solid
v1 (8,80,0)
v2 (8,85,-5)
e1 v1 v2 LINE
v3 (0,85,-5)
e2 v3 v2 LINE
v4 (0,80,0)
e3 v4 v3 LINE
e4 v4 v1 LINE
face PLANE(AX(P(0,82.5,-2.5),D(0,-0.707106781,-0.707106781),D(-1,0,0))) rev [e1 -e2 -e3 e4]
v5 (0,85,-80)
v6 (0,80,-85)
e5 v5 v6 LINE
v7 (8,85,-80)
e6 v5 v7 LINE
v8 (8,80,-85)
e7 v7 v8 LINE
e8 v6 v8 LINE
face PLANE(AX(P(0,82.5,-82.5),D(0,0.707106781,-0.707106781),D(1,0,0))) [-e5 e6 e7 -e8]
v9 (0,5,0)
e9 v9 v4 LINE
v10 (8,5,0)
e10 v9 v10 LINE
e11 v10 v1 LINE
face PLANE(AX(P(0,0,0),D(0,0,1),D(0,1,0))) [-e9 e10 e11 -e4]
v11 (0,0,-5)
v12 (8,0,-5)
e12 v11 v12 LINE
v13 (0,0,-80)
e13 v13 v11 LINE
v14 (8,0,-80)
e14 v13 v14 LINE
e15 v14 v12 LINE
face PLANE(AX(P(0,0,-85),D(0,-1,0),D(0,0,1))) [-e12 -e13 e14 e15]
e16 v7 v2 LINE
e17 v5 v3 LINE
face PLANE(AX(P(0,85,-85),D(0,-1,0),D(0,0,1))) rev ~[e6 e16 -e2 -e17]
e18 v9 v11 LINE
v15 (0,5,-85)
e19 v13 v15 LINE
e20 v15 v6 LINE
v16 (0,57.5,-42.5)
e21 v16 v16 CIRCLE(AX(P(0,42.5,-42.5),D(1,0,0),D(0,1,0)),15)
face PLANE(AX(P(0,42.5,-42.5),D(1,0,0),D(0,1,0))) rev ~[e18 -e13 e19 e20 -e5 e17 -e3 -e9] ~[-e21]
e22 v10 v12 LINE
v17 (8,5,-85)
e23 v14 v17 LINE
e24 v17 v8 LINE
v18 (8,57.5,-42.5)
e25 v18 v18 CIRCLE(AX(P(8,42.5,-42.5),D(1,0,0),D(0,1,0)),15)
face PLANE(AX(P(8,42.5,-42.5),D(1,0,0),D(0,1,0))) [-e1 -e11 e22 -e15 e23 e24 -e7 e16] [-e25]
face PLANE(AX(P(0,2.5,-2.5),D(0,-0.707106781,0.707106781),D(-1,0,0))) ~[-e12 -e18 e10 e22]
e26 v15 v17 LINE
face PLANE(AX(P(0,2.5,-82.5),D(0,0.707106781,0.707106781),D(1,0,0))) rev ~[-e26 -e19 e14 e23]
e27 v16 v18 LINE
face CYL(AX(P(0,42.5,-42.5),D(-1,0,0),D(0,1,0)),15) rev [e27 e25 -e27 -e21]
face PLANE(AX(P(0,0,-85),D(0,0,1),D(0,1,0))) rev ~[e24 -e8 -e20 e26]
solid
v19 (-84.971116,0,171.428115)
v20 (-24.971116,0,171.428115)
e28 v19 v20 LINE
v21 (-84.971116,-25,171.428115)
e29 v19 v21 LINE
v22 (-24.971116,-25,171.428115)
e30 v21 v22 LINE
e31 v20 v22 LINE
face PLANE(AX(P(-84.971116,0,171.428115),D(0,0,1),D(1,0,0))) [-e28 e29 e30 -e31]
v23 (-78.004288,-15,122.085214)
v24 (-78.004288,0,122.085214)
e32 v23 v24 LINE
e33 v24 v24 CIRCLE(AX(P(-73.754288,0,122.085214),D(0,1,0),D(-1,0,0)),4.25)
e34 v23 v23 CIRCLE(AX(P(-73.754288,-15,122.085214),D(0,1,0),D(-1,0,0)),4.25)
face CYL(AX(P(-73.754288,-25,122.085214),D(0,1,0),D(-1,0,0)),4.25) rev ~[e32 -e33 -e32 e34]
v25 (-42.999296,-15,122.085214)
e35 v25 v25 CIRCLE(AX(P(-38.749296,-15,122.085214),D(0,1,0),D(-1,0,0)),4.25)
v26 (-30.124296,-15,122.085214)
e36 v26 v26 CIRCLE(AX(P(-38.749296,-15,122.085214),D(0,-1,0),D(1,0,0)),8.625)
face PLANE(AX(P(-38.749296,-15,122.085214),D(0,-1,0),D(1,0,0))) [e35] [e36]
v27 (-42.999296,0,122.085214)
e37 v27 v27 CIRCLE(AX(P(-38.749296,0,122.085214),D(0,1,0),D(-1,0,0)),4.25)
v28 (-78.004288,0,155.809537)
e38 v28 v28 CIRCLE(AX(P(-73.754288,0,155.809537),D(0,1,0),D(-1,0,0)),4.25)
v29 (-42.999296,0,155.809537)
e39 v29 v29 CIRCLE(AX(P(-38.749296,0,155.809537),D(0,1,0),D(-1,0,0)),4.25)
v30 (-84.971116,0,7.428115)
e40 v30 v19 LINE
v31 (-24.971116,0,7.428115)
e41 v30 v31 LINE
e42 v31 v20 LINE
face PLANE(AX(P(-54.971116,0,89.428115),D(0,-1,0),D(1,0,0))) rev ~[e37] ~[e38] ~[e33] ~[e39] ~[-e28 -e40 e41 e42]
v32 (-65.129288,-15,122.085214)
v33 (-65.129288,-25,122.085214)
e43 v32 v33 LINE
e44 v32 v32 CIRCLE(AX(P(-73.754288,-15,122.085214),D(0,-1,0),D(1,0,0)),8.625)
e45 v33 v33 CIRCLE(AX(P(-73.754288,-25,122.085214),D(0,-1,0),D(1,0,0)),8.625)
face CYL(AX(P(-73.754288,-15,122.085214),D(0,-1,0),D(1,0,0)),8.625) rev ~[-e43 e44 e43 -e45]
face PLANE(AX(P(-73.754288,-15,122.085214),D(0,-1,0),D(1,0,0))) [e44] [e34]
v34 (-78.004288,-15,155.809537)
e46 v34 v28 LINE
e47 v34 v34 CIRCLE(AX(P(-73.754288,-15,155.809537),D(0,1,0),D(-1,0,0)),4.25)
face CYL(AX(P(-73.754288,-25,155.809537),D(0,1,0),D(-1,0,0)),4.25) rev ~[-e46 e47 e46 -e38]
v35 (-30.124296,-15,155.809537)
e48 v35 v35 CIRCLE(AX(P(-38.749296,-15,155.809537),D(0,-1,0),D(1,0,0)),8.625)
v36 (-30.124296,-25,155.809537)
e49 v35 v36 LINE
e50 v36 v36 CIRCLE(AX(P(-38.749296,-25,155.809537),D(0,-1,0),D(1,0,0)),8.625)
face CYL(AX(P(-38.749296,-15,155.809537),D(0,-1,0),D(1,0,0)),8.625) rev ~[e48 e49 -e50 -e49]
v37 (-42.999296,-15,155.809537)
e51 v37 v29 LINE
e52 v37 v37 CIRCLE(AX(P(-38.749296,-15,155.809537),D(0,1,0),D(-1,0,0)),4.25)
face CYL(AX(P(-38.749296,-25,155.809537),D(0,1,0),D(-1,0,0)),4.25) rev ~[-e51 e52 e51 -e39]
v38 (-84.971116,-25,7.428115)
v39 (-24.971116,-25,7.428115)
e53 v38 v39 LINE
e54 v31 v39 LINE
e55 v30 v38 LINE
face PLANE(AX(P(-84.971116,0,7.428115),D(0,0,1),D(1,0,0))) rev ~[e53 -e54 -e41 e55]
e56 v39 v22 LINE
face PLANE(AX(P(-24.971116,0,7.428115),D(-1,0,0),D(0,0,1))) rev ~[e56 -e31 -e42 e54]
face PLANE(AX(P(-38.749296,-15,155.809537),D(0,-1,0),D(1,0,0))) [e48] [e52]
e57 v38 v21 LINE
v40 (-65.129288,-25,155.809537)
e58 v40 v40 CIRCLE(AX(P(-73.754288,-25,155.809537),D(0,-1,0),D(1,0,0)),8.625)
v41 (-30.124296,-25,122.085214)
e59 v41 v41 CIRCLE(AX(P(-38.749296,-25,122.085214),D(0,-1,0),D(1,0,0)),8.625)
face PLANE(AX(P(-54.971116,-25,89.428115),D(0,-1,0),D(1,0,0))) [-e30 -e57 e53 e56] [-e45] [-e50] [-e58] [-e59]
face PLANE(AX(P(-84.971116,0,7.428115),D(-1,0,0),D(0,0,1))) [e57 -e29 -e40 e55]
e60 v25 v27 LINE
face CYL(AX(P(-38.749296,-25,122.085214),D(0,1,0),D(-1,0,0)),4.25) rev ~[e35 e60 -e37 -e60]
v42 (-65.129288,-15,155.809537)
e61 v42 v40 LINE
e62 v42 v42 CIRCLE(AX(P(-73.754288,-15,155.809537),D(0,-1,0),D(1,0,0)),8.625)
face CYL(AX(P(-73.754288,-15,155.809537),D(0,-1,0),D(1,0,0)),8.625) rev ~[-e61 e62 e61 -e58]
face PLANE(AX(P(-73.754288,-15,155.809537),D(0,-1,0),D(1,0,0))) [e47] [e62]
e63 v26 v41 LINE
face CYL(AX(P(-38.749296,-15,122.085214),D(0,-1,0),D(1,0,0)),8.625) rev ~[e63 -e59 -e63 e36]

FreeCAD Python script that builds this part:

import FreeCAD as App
import Part
import Sketcher

V = App.Vector


def edges_at(feature, points):
    """Names of the edges that pass closest to the given points."""
    edges = feature.Shape.Edges
    near = lambda p: min(range(len(edges)), key=lambda i: edges[i].distToShape(Part.Vertex(*p))[0])
    return sorted({f"Edge{near(p) + 1}" for p in points})


def add_polygon(sketch, points):
    """Adds a closed chain of lines whose ends are joined by coincident constraints."""
    first, n = sketch.GeometryCount, len(points)
    for a, b in zip(points, points[1:] + points[:1]):
        sketch.addGeometry(Part.LineSegment(App.Vector(*a, 0), App.Vector(*b, 0)), False)
    for i in range(n):
        sketch.addConstraint(Sketcher.Constraint("Coincident", first + i, 2, first + (i + 1) % n, 1))

doc = App.newDocument("Part")
body = doc.addObject("PartDesign::Body", "Body")

# Sketch on YZ plane
sketch1 = body.newObject("Sketcher::SketchObject", "Sketch")
sketch1.AttachmentSupport = (doc.getObject("YZ_Plane"), [""])
sketch1.MapMode = "FlatFace"
add_polygon(sketch1, [(0, 0), (0, -85), (85, -85), (85, 0)])  # lines 0-3
sketch1.addGeometry(Part.Circle(V(42.5, -42.5, 0), V(0, 0, 1), 15), False)  # 4
sketch1.addConstraint([
    Sketcher.Constraint("Vertical", 0),
    Sketcher.Constraint("Horizontal", 1),
    Sketcher.Constraint("Vertical", 2),
    Sketcher.Constraint("Horizontal", 3),
    Sketcher.Constraint("Coincident", 3, 2, -1, 1),
    Sketcher.Constraint("Equal", 3, 0),
    Sketcher.Constraint("Diameter", 4, 30.0),
    Sketcher.Constraint("DistanceX", 1, 1, 1, 2, 85.0),
    Sketcher.Constraint("DistanceX", -1, 1, 4, 3, 42.5),
    Sketcher.Constraint("DistanceY", 4, 3, -1, 1, 42.5),
])
pad1 = body.newObject("PartDesign::Pad", "Pad")
pad1.Profile = sketch1
pad1.Length = 8
doc.recompute()

chamfer = body.newObject("PartDesign::Chamfer", "Chamfer")
chamfer.Base = (pad1, edges_at(pad1, [(4, 85, 0)]))
chamfer.Size = 5
doc.recompute()

chamfer2 = body.newObject("PartDesign::Chamfer", "Chamfer001")
chamfer2.Base = (chamfer, edges_at(chamfer, [(4, 0, 0), (4, 0, -85), (4, 85, -85)]))
chamfer2.Size = 5
body2 = doc.addObject("PartDesign::Body", "Body001")

# Sketch on XZ plane
sketch2 = body2.newObject("Sketcher::SketchObject", "Sketch001")
sketch2.AttachmentSupport = (doc.getObject("XZ_Plane001"), [""])
sketch2.MapMode = "FlatFace"
add_polygon(sketch2, [(-84.971116, 171.428115), (-84.971116, 7.428115), (-24.971116, 7.428115), (-24.971116, 171.428115)])  # lines 0-3
sketch2.addConstraint([
    Sketcher.Constraint("Vertical", 0),
    Sketcher.Constraint("Horizontal", 1),
    Sketcher.Constraint("Vertical", 2),
    Sketcher.Constraint("Horizontal", 3),
    Sketcher.Constraint("DistanceX", 1, 1, 1, 2, 60.0),
    Sketcher.Constraint("DistanceY", 0, 2, 0, 1, 164.0),
    Sketcher.Constraint("DistanceX", 0, 2, -1, 1, 84.971116),
    Sketcher.Constraint("DistanceY", -1, 1, 0, 2, 7.428115),
])
pad2 = body2.newObject("PartDesign::Pad", "Pad001")
pad2.Profile = sketch2
pad2.Length = 25

# Sketch on XZ plane
sketch3 = body2.newObject("Sketcher::SketchObject", "Sketch002")
sketch3.AttachmentSupport = (doc.getObject("XZ_Plane001"), [""])
sketch3.MapMode = "FlatFace"
sketch3.AttachmentOffset = App.Placement(V(0, 0, 25), App.Rotation())
sketch3.addGeometry([
    Part.Circle(V(-73.754288, 155.809537, 0), V(0, 0, 1), 4.25),
    Part.Circle(V(-38.749296, 155.809537, 0), V(0, 0, 1), 4.25),
    Part.Circle(V(-38.749296, 122.085214, 0), V(0, 0, 1), 4.25),
    Part.Circle(V(-73.754288, 122.085214, 0), V(0, 0, 1), 4.25),
], False)
sketch3.addConstraint([
    Sketcher.Constraint("Equal", 0, 1),
    Sketcher.Constraint("Equal", 1, 2),
    Sketcher.Constraint("Equal", 2, 3),
    Sketcher.Constraint("Horizontal", 0, 3, 1, 3),
    Sketcher.Constraint("Horizontal", 2, 3, 3, 3),
    Sketcher.Constraint("Vertical", 1, 3, 2, 3),
    Sketcher.Constraint("Vertical", 0, 3, 3, 3),
    Sketcher.Constraint("Diameter", 0, 8.5),
    Sketcher.Constraint("DistanceX", 0, 3, -1, 1, 73.754288),
    Sketcher.Constraint("DistanceY", -1, 1, 0, 3, 155.809537),
    Sketcher.Constraint("DistanceX", 1, 3, -1, 1, 38.749296),
    Sketcher.Constraint("DistanceY", -1, 1, 2, 3, 122.085214),
])
doc.recompute()
hole = body2.newObject("PartDesign::Hole", "Hole")
hole.Profile = sketch3
hole.ThreadType = "None"
hole.Diameter = 8.5
hole.DepthType = "ThroughAll"
hole.HoleCutType = "Counterbore"
hole.HoleCutDiameter = 17.25
hole.HoleCutDepth = 10

doc.recompute()
